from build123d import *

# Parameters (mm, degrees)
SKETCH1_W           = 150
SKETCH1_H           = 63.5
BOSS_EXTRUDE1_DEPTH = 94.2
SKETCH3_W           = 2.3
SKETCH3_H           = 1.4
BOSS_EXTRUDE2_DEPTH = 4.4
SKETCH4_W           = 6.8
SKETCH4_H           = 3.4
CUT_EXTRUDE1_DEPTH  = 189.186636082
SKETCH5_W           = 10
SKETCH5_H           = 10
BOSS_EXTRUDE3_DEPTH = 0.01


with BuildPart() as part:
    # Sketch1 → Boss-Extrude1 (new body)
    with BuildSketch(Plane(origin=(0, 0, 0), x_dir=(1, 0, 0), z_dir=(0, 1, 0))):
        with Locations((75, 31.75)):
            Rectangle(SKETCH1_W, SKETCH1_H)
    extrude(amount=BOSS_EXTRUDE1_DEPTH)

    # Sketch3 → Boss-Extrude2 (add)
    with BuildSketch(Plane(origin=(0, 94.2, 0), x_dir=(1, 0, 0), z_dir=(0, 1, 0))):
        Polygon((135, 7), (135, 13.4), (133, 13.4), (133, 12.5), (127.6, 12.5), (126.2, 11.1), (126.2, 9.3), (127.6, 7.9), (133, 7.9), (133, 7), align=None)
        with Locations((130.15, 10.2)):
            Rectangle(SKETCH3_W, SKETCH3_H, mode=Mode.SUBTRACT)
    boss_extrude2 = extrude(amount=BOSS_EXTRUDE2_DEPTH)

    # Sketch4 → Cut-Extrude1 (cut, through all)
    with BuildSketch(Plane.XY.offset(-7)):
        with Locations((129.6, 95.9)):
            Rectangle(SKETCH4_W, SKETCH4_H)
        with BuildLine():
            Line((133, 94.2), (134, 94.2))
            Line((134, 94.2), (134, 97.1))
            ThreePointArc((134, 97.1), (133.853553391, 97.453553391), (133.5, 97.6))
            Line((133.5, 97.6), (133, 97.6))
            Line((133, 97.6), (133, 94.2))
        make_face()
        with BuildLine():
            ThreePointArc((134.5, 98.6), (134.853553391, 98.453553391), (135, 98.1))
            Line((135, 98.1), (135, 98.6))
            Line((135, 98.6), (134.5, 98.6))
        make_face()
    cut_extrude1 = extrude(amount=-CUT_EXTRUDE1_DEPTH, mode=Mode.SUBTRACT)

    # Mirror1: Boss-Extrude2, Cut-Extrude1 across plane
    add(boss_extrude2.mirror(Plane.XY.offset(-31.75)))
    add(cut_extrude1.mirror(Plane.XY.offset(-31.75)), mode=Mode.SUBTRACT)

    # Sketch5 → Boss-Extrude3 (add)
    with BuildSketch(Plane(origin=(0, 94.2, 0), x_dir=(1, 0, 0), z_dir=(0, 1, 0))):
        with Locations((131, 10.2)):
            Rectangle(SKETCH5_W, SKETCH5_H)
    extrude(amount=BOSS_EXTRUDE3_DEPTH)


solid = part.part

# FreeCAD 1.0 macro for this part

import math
import FreeCAD as App
import Part
import Sketcher
Q = App.Units.Quantity

doc = App.newDocument("Part")
body = doc.addObject("PartDesign::Body", "Body")

# Sketch on XZ plane
sketch1 = body.newObject("Sketcher::SketchObject", "Sketch")
sketch1.AttachmentSupport = (doc.getObject("XZ_Plane"), [""])
sketch1.MapMode = "FlatFace"
sketch1.addGeometry([
    Part.LineSegment(App.Vector(0, -63.5, 0), App.Vector(0, 0, 0)),
    Part.LineSegment(App.Vector(0, 0, 0), App.Vector(150, 0, 0)),
    Part.LineSegment(App.Vector(150, 0, 0), App.Vector(150, -63.5, 0)),
    Part.LineSegment(App.Vector(150, -63.5, 0), App.Vector(0, -63.5, 0)),
], False)
sketch1.addConstraint([
    Sketcher.Constraint("Coincident", 0, 2, 1, 1),
    Sketcher.Constraint("Coincident", 1, 2, 2, 1),
    Sketcher.Constraint("Coincident", 2, 2, 3, 1),
    Sketcher.Constraint("Coincident", 3, 2, 0, 1),
    Sketcher.Constraint("Vertical", 0),
    Sketcher.Constraint("Horizontal", 1),
    Sketcher.Constraint("Vertical", 2),
    Sketcher.Constraint("Horizontal", 3),
    Sketcher.Constraint("Coincident", 0, 2, -1, 1),
    Sketcher.Constraint("DistanceX", 1, 1, 1, 2, Q("150 mm")),
    Sketcher.Constraint("DistanceY", 0, 1, 0, 2, Q("63.5 mm")),
])
pad1 = body.newObject("PartDesign::Pad", "Pad")
pad1.Profile = sketch1
pad1.Length = 94.2
pad1.Reversed = True

# Sketch on XZ plane
sketch2 = body.newObject("Sketcher::SketchObject", "Sketch001")
sketch2.AttachmentSupport = (doc.getObject("XZ_Plane"), [""])
sketch2.MapMode = "FlatFace"
sketch2.AttachmentOffset = App.Placement(App.Vector(0, 0, -94.2), App.Rotation())
sketch2.addGeometry([
    Part.LineSegment(App.Vector(135, -7, 0), App.Vector(135, -13.4, 0)),  # 0
    Part.LineSegment(App.Vector(135, -13.4, 0), App.Vector(133, -13.4, 0)),  # 1
    Part.LineSegment(App.Vector(133, -13.4, 0), App.Vector(133, -12.5, 0)),  # 2
    Part.LineSegment(App.Vector(133, -12.5, 0), App.Vector(127.6, -12.5, 0)),  # 3
    Part.LineSegment(App.Vector(127.6, -12.5, 0), App.Vector(126.2, -11.1, 0)),  # 4
    Part.LineSegment(App.Vector(126.2, -11.1, 0), App.Vector(126.2, -9.3, 0)),  # 5
    Part.LineSegment(App.Vector(126.2, -9.3, 0), App.Vector(127.6, -7.9, 0)),  # 6
    Part.LineSegment(App.Vector(127.6, -7.9, 0), App.Vector(133, -7.9, 0)),  # 7
    Part.LineSegment(App.Vector(133, -7.9, 0), App.Vector(133, -7, 0)),  # 8
    Part.LineSegment(App.Vector(133, -7, 0), App.Vector(135, -7, 0)),  # 9
    Part.LineSegment(App.Vector(131.3, -9.5, 0), App.Vector(129, -9.5, 0)),  # 10
    Part.LineSegment(App.Vector(129, -9.5, 0), App.Vector(129, -10.9, 0)),  # 11
    Part.LineSegment(App.Vector(129, -10.9, 0), App.Vector(131.3, -10.9, 0)),  # 12
    Part.LineSegment(App.Vector(131.3, -10.9, 0), App.Vector(131.3, -9.5, 0)),  # 13
], False)
sketch2.addConstraint([
    Sketcher.Constraint("Coincident", 0, 2, 1, 1),
    Sketcher.Constraint("Coincident", 1, 2, 2, 1),
    Sketcher.Constraint("Coincident", 2, 2, 3, 1),
    Sketcher.Constraint("Coincident", 3, 2, 4, 1),
    Sketcher.Constraint("Coincident", 4, 2, 5, 1),
    Sketcher.Constraint("Coincident", 5, 2, 6, 1),
    Sketcher.Constraint("Coincident", 6, 2, 7, 1),
    Sketcher.Constraint("Coincident", 7, 2, 8, 1),
    Sketcher.Constraint("Coincident", 8, 2, 9, 1),
    Sketcher.Constraint("Coincident", 9, 2, 0, 1),
    Sketcher.Constraint("Coincident", 10, 2, 11, 1),
    Sketcher.Constraint("Coincident", 11, 2, 12, 1),
    Sketcher.Constraint("Coincident", 12, 2, 13, 1),
    Sketcher.Constraint("Coincident", 13, 2, 10, 1),
    Sketcher.Constraint("Vertical", 0),
    Sketcher.Constraint("Horizontal", 1),
    Sketcher.Constraint("Vertical", 2),
    Sketcher.Constraint("Horizontal", 3),
    Sketcher.Constraint("Vertical", 5),
    Sketcher.Constraint("Horizontal", 7),
    Sketcher.Constraint("Vertical", 8),
    Sketcher.Constraint("Horizontal", 9),
    Sketcher.Constraint("Horizontal", 10),
    Sketcher.Constraint("Vertical", 11),
    Sketcher.Constraint("Horizontal", 12),
    Sketcher.Constraint("Vertical", 13),
    Sketcher.Constraint("Perpendicular", 4, 6),
    Sketcher.Constraint("Vertical", 3, 2, 6, 2),
    Sketcher.Constraint("Vertical", 2, 2, 7, 2),
    Sketcher.Constraint("Equal", 2, 8),
    Sketcher.Constraint("Equal", 4, 6),
    Sketcher.Constraint("DistanceX", 1, 2, 1, 1, Q("2 mm")),
    Sketcher.Constraint("DistanceX", 3, 2, 3, 1, Q("5.4 mm")),
    Sketcher.Constraint("DistanceX", 10, 2, 10, 1, Q("2.3 mm")),
    Sketcher.Constraint("DistanceY", 0, 2, 0, 1, Q("6.4 mm")),
    Sketcher.Constraint("DistanceY", 2, 1, 2, 2, Q("0.9 mm")),
    Sketcher.Constraint("DistanceY", 5, 1, 5, 2, Q("1.8 mm")),
    Sketcher.Constraint("DistanceY", 11, 2, 11, 1, Q("1.4 mm")),
    Sketcher.Constraint("DistanceX", -1, 1, 0, 2, Q("135 mm")),
    Sketcher.Constraint("DistanceY", 8, 2, -1, 1, Q("7 mm")),
    Sketcher.Constraint("DistanceX", -1, 1, 10, 2, Q("129 mm")),
    Sketcher.Constraint("DistanceY", 3, 2, 10, 2, Q("3 mm")),
])
pad2 = body.newObject("PartDesign::Pad", "Pad001")
pad2.Profile = sketch2
pad2.Length = 4.4
pad2.Reversed = True

# Sketch on XY plane
sketch3 = body.newObject("Sketcher::SketchObject", "Sketch002")
sketch3.AttachmentSupport = (doc.getObject("XY_Plane"), [""])
sketch3.MapMode = "FlatFace"
sketch3.AttachmentOffset = App.Placement(App.Vector(0, 0, -7), App.Rotation())
sketch3.addGeometry([
    Part.LineSegment(App.Vector(126.2, 97.6, 0), App.Vector(126.2, 94.2, 0)),  # 0
    Part.LineSegment(App.Vector(126.2, 94.2, 0), App.Vector(134, 94.2, 0)),  # 1
    Part.LineSegment(App.Vector(134, 94.2, 0), App.Vector(134, 97.1, 0)),  # 2
    Part.ArcOfCircle(Part.Circle(App.Vector(133.5, 97.1, 0), App.Vector(0, 0, 1), 0.5), math.radians(0), math.radians(90)),  # 3
    Part.LineSegment(App.Vector(133.5, 97.6, 0), App.Vector(126.2, 97.6, 0)),  # 4
    Part.ArcOfCircle(Part.Circle(App.Vector(134.5, 98.1, 0), App.Vector(0, 0, 1), 0.5), math.radians(0), math.radians(90)),  # 5
    Part.LineSegment(App.Vector(135, 98.1, 0), App.Vector(135, 98.6, 0)),  # 6
    Part.LineSegment(App.Vector(135, 98.6, 0), App.Vector(134.5, 98.6, 0)),  # 7
], False)
sketch3.addConstraint([
    Sketcher.Constraint("Coincident", 0, 2, 1, 1),
    Sketcher.Constraint("Coincident", 1, 2, 2, 1),
    Sketcher.Constraint("Tangent", 2, 2, 3, 1),
    Sketcher.Constraint("Tangent", 3, 2, 4, 1),
    Sketcher.Constraint("Coincident", 4, 2, 0, 1),
    Sketcher.Constraint("Tangent", 5, 1, 6, 1),
    Sketcher.Constraint("Coincident", 6, 2, 7, 1),
    Sketcher.Constraint("Tangent", 7, 2, 5, 2),
    Sketcher.Constraint("Vertical", 0),
    Sketcher.Constraint("Horizontal", 1),
    Sketcher.Constraint("Vertical", 2),
    Sketcher.Constraint("Horizontal", 4),
    Sketcher.Constraint("Vertical", 6),
    Sketcher.Constraint("Horizontal", 7),
    Sketcher.Constraint("Equal", 3, 5),
    Sketcher.Constraint("Radius", 3, Q("0.5 mm")),
    Sketcher.Constraint("DistanceX", 1, 1, 1, 2, Q("7.8 mm")),
    Sketcher.Constraint("DistanceY", 0, 2, 0, 1, Q("3.4 mm")),
    Sketcher.Constraint("DistanceX", -1, 1, 1, 2, Q("134 mm")),
    Sketcher.Constraint("DistanceX", -1, 1, 5, 1, Q("135 mm")),
    Sketcher.Constraint("DistanceY", 3, 3, 5, 3, Q("1 mm")),
    Sketcher.Constraint("DistanceY", -1, 1, 3, 3, Q("97.1 mm")),
])
pocket1 = body.newObject("PartDesign::Pocket", "Pocket")
pocket1.Profile = sketch3
pocket1.Type = "ThroughAll"
doc.recompute()

datumplane = body.newObject("PartDesign::Plane", "DatumPlane")
datumplane.AttachmentSupport = (doc.getObject("XY_Plane"), [""])
datumplane.MapMode = "FlatFace"
datumplane.AttachmentOffset = App.Placement(App.Vector(0, 0, -31.75), App.Rotation())
mirrored = body.newObject("PartDesign::Mirrored", "Mirrored")
mirrored.Originals = [pad2, pocket1]
mirrored.MirrorPlane = (datumplane, [""])
body.Tip = mirrored

# Sketch on XZ plane
sketch4 = body.newObject("Sketcher::SketchObject", "Sketch003")
sketch4.AttachmentSupport = (doc.getObject("XZ_Plane"), [""])
sketch4.MapMode = "FlatFace"
sketch4.AttachmentOffset = App.Placement(App.Vector(0, 0, -94.2), App.Rotation())
sketch4.addGeometry([
    Part.LineSegment(App.Vector(126, -15.2, 0), App.Vector(126, -5.2, 0)),
    Part.LineSegment(App.Vector(126, -5.2, 0), App.Vector(136, -5.2, 0)),
    Part.LineSegment(App.Vector(136, -5.2, 0), App.Vector(136, -15.2, 0)),
    Part.LineSegment(App.Vector(136, -15.2, 0), App.Vector(126, -15.2, 0)),
], False)
sketch4.addConstraint([
    Sketcher.Constraint("Coincident", 0, 2, 1, 1),
    Sketcher.Constraint("Coincident", 1, 2, 2, 1),
    Sketcher.Constraint("Coincident", 2, 2, 3, 1),
    Sketcher.Constraint("Coincident", 3, 2, 0, 1),
    Sketcher.Constraint("Vertical", 0),
    Sketcher.Constraint("Horizontal", 1),
    Sketcher.Constraint("Vertical", 2),
    Sketcher.Constraint("Horizontal", 3),
    Sketcher.Constraint("Equal", 3, 0),
    Sketcher.Constraint("DistanceX", 1, 1, 1, 2, Q("10 mm")),
    Sketcher.Constraint("DistanceX", -1, 1, 0, 2, Q("126 mm")),
    Sketcher.Constraint("DistanceY", 0, 2, -1, 1, Q("5.2 mm")),
])
pad3 = body.newObject("PartDesign::Pad", "Pad002")
pad3.Profile = sketch4
pad3.Length = 0.01
pad3.Reversed = True

doc.recompute()
